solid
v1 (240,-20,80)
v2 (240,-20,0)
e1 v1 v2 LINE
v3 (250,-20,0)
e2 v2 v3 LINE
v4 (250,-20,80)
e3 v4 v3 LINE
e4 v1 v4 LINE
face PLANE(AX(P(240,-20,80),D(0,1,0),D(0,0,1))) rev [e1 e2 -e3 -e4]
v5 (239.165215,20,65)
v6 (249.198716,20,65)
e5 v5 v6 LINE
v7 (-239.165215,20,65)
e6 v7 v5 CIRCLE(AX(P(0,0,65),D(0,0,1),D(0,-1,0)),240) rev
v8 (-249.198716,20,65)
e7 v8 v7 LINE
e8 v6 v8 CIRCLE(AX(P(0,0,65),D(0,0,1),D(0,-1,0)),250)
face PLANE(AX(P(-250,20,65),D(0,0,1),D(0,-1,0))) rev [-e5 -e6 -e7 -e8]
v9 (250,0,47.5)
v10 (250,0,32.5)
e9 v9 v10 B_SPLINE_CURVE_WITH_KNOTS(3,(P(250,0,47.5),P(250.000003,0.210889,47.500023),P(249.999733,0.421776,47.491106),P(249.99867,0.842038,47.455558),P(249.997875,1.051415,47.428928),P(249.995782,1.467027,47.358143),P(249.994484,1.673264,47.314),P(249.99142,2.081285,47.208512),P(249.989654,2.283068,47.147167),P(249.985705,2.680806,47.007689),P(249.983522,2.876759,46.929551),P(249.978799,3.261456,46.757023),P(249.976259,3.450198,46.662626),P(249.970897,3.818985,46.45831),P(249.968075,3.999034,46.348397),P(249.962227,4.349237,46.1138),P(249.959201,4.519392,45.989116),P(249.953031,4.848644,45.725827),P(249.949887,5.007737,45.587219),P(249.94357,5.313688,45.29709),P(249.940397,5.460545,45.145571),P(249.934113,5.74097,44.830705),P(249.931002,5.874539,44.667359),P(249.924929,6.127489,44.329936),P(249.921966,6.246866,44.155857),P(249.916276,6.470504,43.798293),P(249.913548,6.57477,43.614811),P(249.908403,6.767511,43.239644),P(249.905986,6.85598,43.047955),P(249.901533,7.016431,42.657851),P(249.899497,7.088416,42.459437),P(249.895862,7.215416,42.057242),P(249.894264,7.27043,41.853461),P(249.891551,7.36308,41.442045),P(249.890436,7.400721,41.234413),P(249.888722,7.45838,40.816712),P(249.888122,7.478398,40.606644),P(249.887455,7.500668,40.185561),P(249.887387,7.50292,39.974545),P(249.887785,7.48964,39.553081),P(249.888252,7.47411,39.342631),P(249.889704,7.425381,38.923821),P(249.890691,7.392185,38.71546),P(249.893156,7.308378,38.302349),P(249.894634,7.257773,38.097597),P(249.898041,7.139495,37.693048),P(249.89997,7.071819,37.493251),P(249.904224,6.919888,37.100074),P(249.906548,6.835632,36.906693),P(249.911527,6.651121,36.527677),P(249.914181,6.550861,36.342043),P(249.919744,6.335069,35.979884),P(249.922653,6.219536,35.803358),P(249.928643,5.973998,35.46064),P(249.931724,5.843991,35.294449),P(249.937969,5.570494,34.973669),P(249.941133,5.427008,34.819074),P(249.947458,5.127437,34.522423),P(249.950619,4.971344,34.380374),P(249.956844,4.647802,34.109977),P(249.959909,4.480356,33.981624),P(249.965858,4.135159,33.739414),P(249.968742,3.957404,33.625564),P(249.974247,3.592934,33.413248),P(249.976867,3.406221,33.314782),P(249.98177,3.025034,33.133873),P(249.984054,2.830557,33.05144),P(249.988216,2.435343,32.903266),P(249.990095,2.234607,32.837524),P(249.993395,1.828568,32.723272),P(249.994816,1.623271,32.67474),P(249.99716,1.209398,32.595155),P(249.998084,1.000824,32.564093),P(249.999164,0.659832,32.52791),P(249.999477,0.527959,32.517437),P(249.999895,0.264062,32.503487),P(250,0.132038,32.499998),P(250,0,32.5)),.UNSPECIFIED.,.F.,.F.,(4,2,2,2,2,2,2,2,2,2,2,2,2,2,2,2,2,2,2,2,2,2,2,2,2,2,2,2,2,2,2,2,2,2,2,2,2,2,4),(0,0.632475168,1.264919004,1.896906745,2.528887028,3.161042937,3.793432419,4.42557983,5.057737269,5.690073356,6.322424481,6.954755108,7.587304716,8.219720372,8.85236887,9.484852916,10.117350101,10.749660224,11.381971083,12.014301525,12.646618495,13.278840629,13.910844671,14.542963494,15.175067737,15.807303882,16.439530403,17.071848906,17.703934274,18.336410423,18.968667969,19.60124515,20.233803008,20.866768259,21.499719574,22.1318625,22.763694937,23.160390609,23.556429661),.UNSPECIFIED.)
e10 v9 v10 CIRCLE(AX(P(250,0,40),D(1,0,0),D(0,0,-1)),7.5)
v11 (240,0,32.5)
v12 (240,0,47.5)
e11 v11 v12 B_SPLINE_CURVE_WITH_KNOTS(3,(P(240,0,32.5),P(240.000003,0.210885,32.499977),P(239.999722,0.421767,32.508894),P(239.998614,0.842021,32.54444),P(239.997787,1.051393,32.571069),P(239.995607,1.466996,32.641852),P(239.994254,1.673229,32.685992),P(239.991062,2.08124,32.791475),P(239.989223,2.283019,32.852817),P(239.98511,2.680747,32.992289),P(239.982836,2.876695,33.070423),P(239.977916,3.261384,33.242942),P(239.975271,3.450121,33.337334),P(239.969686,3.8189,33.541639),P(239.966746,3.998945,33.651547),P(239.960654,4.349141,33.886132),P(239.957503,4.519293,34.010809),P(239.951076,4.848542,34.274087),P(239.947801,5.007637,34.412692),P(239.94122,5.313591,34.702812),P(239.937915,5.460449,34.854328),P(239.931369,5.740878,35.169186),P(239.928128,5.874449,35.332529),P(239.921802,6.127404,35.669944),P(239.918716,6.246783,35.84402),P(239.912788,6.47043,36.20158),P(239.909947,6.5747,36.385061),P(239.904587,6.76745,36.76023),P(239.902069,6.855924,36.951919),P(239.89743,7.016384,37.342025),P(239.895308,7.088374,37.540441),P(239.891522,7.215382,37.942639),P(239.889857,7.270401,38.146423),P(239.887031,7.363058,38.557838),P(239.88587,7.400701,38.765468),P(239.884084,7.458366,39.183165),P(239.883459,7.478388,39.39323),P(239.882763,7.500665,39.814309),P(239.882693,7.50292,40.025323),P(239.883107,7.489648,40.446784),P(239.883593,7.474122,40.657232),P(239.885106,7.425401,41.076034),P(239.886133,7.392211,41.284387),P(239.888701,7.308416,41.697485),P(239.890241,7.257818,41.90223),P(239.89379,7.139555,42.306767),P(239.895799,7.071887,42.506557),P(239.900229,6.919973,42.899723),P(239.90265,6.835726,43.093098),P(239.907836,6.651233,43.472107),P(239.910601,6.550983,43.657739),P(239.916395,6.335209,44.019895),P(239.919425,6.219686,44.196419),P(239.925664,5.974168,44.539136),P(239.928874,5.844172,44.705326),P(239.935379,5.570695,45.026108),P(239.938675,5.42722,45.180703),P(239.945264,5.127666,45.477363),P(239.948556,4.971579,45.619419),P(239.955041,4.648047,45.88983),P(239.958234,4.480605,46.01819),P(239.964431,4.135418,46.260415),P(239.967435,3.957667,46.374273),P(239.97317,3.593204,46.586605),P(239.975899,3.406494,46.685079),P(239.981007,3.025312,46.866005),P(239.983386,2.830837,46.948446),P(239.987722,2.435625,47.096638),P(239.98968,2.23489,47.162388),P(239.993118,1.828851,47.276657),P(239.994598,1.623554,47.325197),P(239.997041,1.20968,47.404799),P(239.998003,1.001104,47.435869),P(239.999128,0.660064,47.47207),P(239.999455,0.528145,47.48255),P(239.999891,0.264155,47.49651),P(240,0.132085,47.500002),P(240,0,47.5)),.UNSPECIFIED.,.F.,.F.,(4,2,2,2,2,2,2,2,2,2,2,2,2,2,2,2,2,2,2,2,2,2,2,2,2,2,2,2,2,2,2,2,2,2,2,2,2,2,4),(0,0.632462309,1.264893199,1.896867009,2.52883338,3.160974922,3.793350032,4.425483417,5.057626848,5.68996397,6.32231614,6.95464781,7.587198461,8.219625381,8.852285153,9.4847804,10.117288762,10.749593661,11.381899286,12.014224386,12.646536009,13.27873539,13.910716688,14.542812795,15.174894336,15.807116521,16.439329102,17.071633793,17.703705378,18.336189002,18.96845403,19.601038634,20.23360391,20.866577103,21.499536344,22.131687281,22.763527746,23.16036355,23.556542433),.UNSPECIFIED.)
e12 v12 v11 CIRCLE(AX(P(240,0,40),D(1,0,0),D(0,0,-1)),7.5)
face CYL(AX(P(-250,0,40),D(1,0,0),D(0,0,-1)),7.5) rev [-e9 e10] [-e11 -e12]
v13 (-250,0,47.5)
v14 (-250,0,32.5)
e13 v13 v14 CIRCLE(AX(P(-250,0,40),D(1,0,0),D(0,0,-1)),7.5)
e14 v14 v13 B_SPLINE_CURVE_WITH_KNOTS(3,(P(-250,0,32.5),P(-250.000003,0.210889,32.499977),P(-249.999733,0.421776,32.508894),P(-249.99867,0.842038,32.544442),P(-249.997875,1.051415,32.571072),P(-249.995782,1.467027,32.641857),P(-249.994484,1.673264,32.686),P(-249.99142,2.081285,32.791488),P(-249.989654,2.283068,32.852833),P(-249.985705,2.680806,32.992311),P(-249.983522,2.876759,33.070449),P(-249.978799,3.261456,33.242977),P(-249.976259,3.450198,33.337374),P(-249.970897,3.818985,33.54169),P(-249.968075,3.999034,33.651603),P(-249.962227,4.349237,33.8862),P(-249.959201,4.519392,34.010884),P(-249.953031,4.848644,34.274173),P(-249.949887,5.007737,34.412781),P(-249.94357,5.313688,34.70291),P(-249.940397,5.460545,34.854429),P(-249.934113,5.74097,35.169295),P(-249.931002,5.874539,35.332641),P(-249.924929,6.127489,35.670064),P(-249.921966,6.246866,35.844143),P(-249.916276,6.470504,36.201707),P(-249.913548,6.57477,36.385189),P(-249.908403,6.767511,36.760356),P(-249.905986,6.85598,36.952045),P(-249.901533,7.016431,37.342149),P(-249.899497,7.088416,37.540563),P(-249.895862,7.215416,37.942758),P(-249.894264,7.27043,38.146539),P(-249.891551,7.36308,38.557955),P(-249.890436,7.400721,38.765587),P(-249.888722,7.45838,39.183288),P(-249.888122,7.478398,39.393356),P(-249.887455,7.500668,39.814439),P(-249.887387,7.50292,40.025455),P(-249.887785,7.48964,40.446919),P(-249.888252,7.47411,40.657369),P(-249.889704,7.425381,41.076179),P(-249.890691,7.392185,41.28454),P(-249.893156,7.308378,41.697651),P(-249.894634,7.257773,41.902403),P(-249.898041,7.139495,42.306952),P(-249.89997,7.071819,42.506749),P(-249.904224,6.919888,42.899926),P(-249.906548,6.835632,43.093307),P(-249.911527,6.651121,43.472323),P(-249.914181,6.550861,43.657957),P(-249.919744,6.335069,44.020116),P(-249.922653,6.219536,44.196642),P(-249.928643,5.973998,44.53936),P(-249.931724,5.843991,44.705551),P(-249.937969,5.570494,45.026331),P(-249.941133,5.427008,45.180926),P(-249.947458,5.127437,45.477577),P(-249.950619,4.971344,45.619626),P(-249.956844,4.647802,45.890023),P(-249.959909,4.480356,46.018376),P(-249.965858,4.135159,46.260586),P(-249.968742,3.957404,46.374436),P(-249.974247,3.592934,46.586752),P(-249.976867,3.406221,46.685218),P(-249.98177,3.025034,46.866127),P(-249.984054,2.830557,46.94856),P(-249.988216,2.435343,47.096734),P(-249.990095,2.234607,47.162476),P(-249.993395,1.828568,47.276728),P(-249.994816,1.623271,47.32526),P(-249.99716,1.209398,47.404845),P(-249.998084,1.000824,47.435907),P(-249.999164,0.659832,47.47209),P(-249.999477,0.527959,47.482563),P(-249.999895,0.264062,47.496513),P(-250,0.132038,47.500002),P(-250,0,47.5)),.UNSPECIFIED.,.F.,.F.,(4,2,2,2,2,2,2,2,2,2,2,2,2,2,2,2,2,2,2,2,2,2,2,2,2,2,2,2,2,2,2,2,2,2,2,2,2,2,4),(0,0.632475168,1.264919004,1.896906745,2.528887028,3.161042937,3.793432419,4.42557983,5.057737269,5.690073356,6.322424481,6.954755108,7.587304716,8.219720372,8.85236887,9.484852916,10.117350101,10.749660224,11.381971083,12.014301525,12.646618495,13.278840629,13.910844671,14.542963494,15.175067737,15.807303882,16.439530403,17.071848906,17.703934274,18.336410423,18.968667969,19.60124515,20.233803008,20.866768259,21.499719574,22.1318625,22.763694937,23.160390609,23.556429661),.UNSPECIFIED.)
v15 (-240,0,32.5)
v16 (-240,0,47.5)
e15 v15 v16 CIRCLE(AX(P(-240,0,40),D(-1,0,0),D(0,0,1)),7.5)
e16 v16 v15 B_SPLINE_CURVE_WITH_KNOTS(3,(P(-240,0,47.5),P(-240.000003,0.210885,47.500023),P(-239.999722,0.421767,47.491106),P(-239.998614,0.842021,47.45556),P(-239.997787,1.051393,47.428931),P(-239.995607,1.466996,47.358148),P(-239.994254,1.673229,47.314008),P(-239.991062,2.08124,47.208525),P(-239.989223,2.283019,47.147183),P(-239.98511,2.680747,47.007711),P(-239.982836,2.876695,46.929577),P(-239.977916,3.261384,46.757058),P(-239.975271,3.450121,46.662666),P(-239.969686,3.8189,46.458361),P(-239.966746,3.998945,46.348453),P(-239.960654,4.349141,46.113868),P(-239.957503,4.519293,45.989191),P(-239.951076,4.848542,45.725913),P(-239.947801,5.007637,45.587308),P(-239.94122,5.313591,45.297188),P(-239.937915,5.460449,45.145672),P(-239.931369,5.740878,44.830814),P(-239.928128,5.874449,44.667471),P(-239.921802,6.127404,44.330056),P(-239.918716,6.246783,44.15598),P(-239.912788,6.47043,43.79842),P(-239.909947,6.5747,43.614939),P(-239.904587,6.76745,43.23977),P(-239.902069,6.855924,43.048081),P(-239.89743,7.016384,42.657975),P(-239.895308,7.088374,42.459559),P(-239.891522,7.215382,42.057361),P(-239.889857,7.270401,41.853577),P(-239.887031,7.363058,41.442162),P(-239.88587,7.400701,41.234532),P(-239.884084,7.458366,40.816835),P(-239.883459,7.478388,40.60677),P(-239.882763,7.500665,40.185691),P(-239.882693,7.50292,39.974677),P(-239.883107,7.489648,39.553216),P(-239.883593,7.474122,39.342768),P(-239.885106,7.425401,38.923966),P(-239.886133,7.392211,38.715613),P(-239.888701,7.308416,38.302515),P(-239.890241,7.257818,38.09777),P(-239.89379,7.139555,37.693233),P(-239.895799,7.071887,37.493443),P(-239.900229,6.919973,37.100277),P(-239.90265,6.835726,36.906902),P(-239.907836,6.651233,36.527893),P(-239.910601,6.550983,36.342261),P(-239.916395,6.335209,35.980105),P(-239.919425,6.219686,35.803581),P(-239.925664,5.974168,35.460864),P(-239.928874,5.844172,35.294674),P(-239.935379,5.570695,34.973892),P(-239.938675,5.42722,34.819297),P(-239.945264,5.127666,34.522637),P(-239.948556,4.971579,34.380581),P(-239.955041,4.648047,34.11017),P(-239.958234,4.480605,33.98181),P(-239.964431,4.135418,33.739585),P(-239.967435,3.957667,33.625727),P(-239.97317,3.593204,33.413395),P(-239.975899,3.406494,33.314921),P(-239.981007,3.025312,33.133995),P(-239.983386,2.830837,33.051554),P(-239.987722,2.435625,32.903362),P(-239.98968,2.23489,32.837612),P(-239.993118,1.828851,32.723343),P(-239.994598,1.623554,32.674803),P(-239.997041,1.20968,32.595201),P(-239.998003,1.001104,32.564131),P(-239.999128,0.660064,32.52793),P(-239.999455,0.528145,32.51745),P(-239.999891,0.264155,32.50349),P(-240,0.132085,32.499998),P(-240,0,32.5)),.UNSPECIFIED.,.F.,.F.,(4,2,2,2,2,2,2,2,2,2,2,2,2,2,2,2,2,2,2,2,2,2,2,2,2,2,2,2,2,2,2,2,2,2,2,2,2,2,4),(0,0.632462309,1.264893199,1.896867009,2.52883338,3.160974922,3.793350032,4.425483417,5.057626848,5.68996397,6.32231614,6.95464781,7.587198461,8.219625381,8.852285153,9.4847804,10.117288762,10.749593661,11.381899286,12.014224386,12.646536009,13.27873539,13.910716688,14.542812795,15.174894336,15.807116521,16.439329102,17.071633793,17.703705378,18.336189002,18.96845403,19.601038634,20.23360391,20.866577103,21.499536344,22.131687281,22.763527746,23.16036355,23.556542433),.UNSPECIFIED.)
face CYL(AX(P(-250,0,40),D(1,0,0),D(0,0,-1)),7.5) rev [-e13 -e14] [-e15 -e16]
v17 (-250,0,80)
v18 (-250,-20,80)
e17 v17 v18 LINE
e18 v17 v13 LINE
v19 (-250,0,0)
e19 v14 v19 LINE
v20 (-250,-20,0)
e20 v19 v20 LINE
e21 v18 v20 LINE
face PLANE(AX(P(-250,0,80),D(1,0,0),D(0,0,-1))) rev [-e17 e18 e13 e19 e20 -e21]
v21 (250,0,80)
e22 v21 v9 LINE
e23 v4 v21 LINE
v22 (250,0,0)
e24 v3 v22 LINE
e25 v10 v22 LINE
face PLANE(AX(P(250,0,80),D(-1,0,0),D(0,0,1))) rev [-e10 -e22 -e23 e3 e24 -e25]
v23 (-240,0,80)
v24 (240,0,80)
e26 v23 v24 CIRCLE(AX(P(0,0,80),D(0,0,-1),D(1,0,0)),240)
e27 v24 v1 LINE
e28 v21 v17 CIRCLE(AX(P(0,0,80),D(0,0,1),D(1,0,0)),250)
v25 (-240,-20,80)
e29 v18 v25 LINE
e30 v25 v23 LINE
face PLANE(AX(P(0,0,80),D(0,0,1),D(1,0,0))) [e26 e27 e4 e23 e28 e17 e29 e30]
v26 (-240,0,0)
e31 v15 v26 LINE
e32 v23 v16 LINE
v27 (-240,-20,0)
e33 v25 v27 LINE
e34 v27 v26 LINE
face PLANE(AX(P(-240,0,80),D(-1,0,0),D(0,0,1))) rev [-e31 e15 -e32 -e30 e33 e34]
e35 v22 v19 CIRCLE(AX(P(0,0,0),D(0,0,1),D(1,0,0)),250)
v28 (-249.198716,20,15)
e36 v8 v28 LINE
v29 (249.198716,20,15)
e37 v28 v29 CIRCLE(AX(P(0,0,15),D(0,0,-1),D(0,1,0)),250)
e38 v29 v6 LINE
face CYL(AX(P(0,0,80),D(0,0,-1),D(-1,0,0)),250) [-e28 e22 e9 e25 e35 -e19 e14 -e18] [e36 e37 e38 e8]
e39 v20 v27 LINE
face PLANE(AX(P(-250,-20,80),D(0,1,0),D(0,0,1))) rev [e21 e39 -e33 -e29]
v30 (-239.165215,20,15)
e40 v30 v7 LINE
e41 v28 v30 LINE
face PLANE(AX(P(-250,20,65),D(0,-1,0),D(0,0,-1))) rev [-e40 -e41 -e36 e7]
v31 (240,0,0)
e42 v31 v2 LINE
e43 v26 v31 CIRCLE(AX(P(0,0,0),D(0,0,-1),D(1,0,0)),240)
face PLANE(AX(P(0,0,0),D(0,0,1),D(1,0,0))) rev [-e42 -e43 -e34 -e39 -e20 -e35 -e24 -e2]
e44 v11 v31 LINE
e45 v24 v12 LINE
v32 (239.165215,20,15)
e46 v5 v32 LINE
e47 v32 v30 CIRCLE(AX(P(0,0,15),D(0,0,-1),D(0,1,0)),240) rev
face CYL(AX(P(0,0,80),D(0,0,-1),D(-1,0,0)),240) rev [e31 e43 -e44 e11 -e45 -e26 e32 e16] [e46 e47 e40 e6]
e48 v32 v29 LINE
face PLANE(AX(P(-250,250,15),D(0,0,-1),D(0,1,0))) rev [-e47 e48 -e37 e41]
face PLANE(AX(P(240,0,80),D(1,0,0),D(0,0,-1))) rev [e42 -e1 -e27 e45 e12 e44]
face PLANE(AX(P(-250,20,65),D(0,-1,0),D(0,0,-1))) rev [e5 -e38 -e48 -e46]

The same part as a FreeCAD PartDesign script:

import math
import FreeCAD as App
import Part
import Sketcher
Q = App.Units.Quantity

doc = App.newDocument("Part")
body = doc.addObject("PartDesign::Body", "Body")

# Sketch on XY plane
sketch1 = doc.addObject("Sketcher::SketchObject", "Sketch")
body.addObject(sketch1)
sketch1.AttachmentSupport = (doc.XY_Plane, [""])
sketch1.MapMode = "FlatFace"
sketch1.addGeometry(Part.LineSegment(App.Vector(-250, 0, 0), App.Vector(-250, -20, 0)), False)
sketch1.addGeometry(Part.LineSegment(App.Vector(-250, -20, 0), App.Vector(-240, -20, 0)), False)
sketch1.addGeometry(Part.LineSegment(App.Vector(-240, -20, 0), App.Vector(-240, 0, 0)), False)
sketch1.addGeometry(Part.ArcOfCircle(Part.Circle(App.Vector(0, 0, 0), App.Vector(0, 0, 1), 240), math.radians(0), math.radians(180)), False)
sketch1.addGeometry(Part.LineSegment(App.Vector(240, 0, 0), App.Vector(240, -20, 0)), False)
sketch1.addGeometry(Part.LineSegment(App.Vector(240, -20, 0), App.Vector(250, -20, 0)), False)
sketch1.addGeometry(Part.LineSegment(App.Vector(250, -20, 0), App.Vector(250, 0, 0)), False)
sketch1.addGeometry(Part.ArcOfCircle(Part.Circle(App.Vector(0, 0, 0), App.Vector(0, 0, 1), 250), math.radians(0), math.radians(180)), False)
sketch1.addConstraint(Sketcher.Constraint("Coincident", 0, 2, 1, 1))
sketch1.addConstraint(Sketcher.Constraint("Coincident", 1, 2, 2, 1))
sketch1.addConstraint(Sketcher.Constraint("Tangent", 2, 2, 3, 2))
sketch1.addConstraint(Sketcher.Constraint("Tangent", 3, 1, 4, 1))
sketch1.addConstraint(Sketcher.Constraint("Coincident", 4, 2, 5, 1))
sketch1.addConstraint(Sketcher.Constraint("Coincident", 5, 2, 6, 1))
sketch1.addConstraint(Sketcher.Constraint("Tangent", 6, 2, 7, 1))
sketch1.addConstraint(Sketcher.Constraint("Tangent", 7, 2, 0, 1))
sketch1.addConstraint(Sketcher.Constraint("Vertical", 0))
sketch1.addConstraint(Sketcher.Constraint("Horizontal", 1))
sketch1.addConstraint(Sketcher.Constraint("Vertical", 2))
sketch1.addConstraint(Sketcher.Constraint("Vertical", 4))
sketch1.addConstraint(Sketcher.Constraint("Horizontal", 5))
sketch1.addConstraint(Sketcher.Constraint("Vertical", 6))
sketch1.addConstraint(Sketcher.Constraint("Coincident", 3, 3, -1, 1))
sketch1.addConstraint(Sketcher.Constraint("Coincident", 7, 3, -1, 1))
sketch1.addConstraint(Sketcher.Constraint("Horizontal", 1, 2, 4, 2))
sketch1.addConstraint(Sketcher.Constraint("Radius", 3, Q("240 mm")))
sketch1.addConstraint(Sketcher.Constraint("Radius", 7, Q("250 mm")))
sketch1.addConstraint(Sketcher.Constraint("DistanceY", 0, 2, 0, 1, Q("20 mm")))
pad1 = doc.addObject("PartDesign::Pad", "Pad")
body.addObject(pad1)
pad1.Profile = sketch1
pad1.Length = 80

# Sketch on YZ plane
sketch2 = doc.addObject("Sketcher::SketchObject", "Sketch001")
body.addObject(sketch2)
sketch2.AttachmentSupport = (doc.YZ_Plane, [""])
sketch2.MapMode = "FlatFace"
sketch2.AttachmentOffset = App.Placement(App.Vector(0, 0, 250), App.Rotation())
sketch2.addGeometry(Part.Circle(App.Vector(0, 40, 0), App.Vector(0, 0, 1), 7.5), False)
sketch2.addConstraint(Sketcher.Constraint("PointOnObject", 0, 3, -2))
sketch2.addConstraint(Sketcher.Constraint("Diameter", 0, Q("15 mm")))
sketch2.addConstraint(Sketcher.Constraint("DistanceY", -1, 1, 0, 3, Q("40 mm")))
pocket1 = doc.addObject("PartDesign::Pocket", "Pocket")
body.addObject(pocket1)
pocket1.Profile = sketch2
pocket1.Type = "ThroughAll"

# Sketch on YZ plane
sketch3 = doc.addObject("Sketcher::SketchObject", "Sketch002")
body.addObject(sketch3)
sketch3.AttachmentSupport = (doc.YZ_Plane, [""])
sketch3.MapMode = "FlatFace"
sketch3.AttachmentOffset = App.Placement(App.Vector(0, 0, 250), App.Rotation())
sketch3.addGeometry(Part.LineSegment(App.Vector(250, 65, 0), App.Vector(20, 65, 0)), False)
sketch3.addGeometry(Part.LineSegment(App.Vector(20, 65, 0), App.Vector(20, 15, 0)), False)
sketch3.addGeometry(Part.LineSegment(App.Vector(20, 15, 0), App.Vector(250, 15, 0)), False)
sketch3.addGeometry(Part.LineSegment(App.Vector(250, 15, 0), App.Vector(250, 65, 0)), False)
sketch3.addConstraint(Sketcher.Constraint("Coincident", 0, 2, 1, 1))
sketch3.addConstraint(Sketcher.Constraint("Coincident", 1, 2, 2, 1))
sketch3.addConstraint(Sketcher.Constraint("Coincident", 2, 2, 3, 1))
sketch3.addConstraint(Sketcher.Constraint("Coincident", 3, 2, 0, 1))
sketch3.addConstraint(Sketcher.Constraint("Horizontal", 0))
sketch3.addConstraint(Sketcher.Constraint("Vertical", 1))
sketch3.addConstraint(Sketcher.Constraint("Horizontal", 2))
sketch3.addConstraint(Sketcher.Constraint("Vertical", 3))
sketch3.addConstraint(Sketcher.Constraint("DistanceX", 0, 2, 0, 1, Q("230 mm")))
sketch3.addConstraint(Sketcher.Constraint("DistanceY", 1, 2, 1, 1, Q("50 mm")))
sketch3.addConstraint(Sketcher.Constraint("DistanceX", -1, 1, 0, 2, Q("20 mm")))
sketch3.addConstraint(Sketcher.Constraint("DistanceY", -1, 1, 0, 2, Q("65 mm")))
pocket2 = doc.addObject("PartDesign::Pocket", "Pocket001")
body.addObject(pocket2)
pocket2.Profile = sketch3
pocket2.Type = "ThroughAll"

doc.recompute()
